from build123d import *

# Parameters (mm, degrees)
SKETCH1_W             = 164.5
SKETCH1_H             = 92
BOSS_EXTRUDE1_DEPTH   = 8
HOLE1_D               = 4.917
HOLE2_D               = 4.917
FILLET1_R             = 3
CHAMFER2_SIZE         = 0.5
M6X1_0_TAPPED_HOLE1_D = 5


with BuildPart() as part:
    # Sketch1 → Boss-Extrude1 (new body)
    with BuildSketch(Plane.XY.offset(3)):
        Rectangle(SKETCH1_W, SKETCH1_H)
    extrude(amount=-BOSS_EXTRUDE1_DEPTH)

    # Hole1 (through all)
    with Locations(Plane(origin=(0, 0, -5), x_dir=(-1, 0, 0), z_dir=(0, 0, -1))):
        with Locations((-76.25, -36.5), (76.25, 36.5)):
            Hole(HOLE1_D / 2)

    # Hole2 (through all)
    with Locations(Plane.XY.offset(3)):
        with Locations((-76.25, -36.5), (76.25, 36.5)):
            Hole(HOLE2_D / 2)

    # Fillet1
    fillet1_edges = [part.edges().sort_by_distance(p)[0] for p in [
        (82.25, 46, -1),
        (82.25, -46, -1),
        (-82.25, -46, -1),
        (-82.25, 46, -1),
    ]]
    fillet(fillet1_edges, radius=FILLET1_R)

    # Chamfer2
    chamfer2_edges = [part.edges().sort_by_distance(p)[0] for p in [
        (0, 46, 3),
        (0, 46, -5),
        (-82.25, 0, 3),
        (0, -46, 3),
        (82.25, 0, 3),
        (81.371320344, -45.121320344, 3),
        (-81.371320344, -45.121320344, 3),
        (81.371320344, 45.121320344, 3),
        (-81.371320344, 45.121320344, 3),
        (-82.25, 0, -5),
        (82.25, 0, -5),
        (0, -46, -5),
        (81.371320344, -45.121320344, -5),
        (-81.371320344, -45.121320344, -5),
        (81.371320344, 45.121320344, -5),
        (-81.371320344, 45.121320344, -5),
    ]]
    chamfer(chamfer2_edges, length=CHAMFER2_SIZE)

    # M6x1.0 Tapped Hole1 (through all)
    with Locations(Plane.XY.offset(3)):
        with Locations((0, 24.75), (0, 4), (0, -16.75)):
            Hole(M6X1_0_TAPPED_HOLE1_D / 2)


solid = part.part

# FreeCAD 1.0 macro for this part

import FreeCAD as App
import Part
import Sketcher


def edges_at(feature, points):
    """Names of the edges that pass closest to the given points."""
    edges = feature.Shape.Edges
    near = lambda p: min(range(len(edges)), key=lambda i: edges[i].distToShape(Part.Vertex(*p))[0])
    return sorted({f"Edge{near(p) + 1}" for p in points})


def add_polygon(sketch, points):
    """Adds a closed chain of lines whose ends are joined by coincident constraints."""
    first, n = sketch.GeometryCount, len(points)
    for a, b in zip(points, points[1:] + points[:1]):
        sketch.addGeometry(Part.LineSegment(App.Vector(*a, 0), App.Vector(*b, 0)), False)
    for i in range(n):
        sketch.addConstraint(Sketcher.Constraint("Coincident", first + i, 2, first + (i + 1) % n, 1))

doc = App.newDocument("Part")
params = doc.addObject("Spreadsheet::Sheet", "Params")
for row, (alias, value) in enumerate([
    ("sketch1_height", "92 mm"),
    ("sketch1_width", "164.5 mm"),
    ("pad1_length", "8 mm"),
    ("hole_diameter", "4.917 mm"),
    ("hole2_diameter", "4.917 mm"),
    ("fillet_radius", "3 mm"),
    ("chamfer_size", "0.5 mm"),
    ("sketch4_diameter", "5 mm"),
    ("hole3_diameter", "5 mm"),
], start=1):
    params.set(f"A{row}", alias)
    params.set(f"B{row}", "=" + value)
    params.setAlias(f"B{row}", alias)

body = doc.addObject("PartDesign::Body", "Body")

# Sketch on XY plane
sketch1 = body.newObject("Sketcher::SketchObject", "Sketch")
sketch1.AttachmentSupport = (doc.getObject("XY_Plane"), [""])
sketch1.MapMode = "FlatFace"
sketch1.AttachmentOffset = App.Placement(App.Vector(0, 0, 3), App.Rotation())
add_polygon(sketch1, [(-82, 46), (-82, -46), (82, -46), (82, 46)])  # lines 0-3
sketch1.addConstraint([
    Sketcher.Constraint("Vertical", 0),
    Sketcher.Constraint("Horizontal", 1),
    Sketcher.Constraint("Vertical", 2),
    Sketcher.Constraint("Horizontal", 3),
    Sketcher.Constraint("Symmetric", 0, 2, 2, 2, -1, 1),
    Sketcher.Constraint("DistanceY", 0, 2, 0, 1, 92.0),
    Sketcher.Constraint("DistanceX", 1, 1, 1, 2, 164.5),
])
sketch1.setExpression("Constraints[9]", "Params.sketch1_height")
sketch1.setExpression("Constraints[10]", "Params.sketch1_width")
pad1 = body.newObject("PartDesign::Pad", "Pad")
pad1.Profile = sketch1
pad1.setExpression("Length", "Params.pad1_length")
pad1.Reversed = True

# Sketch on XY plane
sketch2 = body.newObject("Sketcher::SketchObject", "Sketch001")
sketch2.AttachmentSupport = (doc.getObject("XY_Plane"), [""])
sketch2.MapMode = "FlatFace"
sketch2.AttachmentOffset = App.Placement(App.Vector(0, 0, -5), App.Rotation())
sketch2.addGeometry([
    Part.Circle(App.Vector(76.2, -36.5, 0), App.Vector(0, 0, 1), 2.5),
    Part.Circle(App.Vector(-76.2, 36.5, 0), App.Vector(0, 0, 1), 2.5),
], False)
sketch2.addConstraint([
    Sketcher.Constraint("Equal", 0, 1),
    Sketcher.Constraint("Symmetric", 0, 3, 1, 3, -1, 1),
    Sketcher.Constraint("Diameter", 0, 4.917),
    Sketcher.Constraint("DistanceY", 0, 3, 1, 3, 73.0),
    Sketcher.Constraint("DistanceX", 1, 3, 0, 3, 152.5),
])
doc.recompute()
hole = body.newObject("PartDesign::Hole", "Hole")
hole.Profile = sketch2
hole.ThreadType = "None"
hole.setExpression("Diameter", "Params.hole_diameter")
hole.DepthType = "ThroughAll"
hole.Reversed = True

# Sketch on XY plane
sketch3 = body.newObject("Sketcher::SketchObject", "Sketch002")
sketch3.AttachmentSupport = (doc.getObject("XY_Plane"), [""])
sketch3.MapMode = "FlatFace"
sketch3.AttachmentOffset = App.Placement(App.Vector(0, 0, 3), App.Rotation())
sketch3.addGeometry([
    Part.Circle(App.Vector(-76.2, -36.5, 0), App.Vector(0, 0, 1), 2.5),
    Part.Circle(App.Vector(76.2, 36.5, 0), App.Vector(0, 0, 1), 2.5),
], False)
sketch3.addConstraint([
    Sketcher.Constraint("Equal", 0, 1),
    Sketcher.Constraint("Symmetric", 0, 3, 1, 3, -1, 1),
    Sketcher.Constraint("Diameter", 0, 4.917),
    Sketcher.Constraint("DistanceY", 0, 3, 1, 3, 73.0),
    Sketcher.Constraint("DistanceX", 0, 3, 1, 3, 152.5),
])
doc.recompute()
hole2 = body.newObject("PartDesign::Hole", "Hole001")
hole2.Profile = sketch3
hole2.ThreadType = "None"
hole2.setExpression("Diameter", "Params.hole2_diameter")
hole2.DepthType = "ThroughAll"
doc.recompute()

fillet = body.newObject("PartDesign::Fillet", "Fillet")
fillet.Base = (hole2, edges_at(hole2, [
    (82.25, 46, -1),
    (82.25, -46, -1),
    (-82.25, -46, -1),
    (-82.25, 46, -1),
]))
fillet.setExpression("Radius", "Params.fillet_radius")
doc.recompute()

chamfer = body.newObject("PartDesign::Chamfer", "Chamfer")
chamfer.Base = (fillet, edges_at(fillet, [
    (0, 46, 3),
    (0, 46, -5),
    (-82.25, 0, 3),
    (0, -46, 3),
    (82.25, 0, 3),
    (81.371, -45.121, 3),
    (-81.371, -45.121, 3),
    (81.371, 45.121, 3),
    (-81.371, 45.121, 3),
    (-82.25, 0, -5),
    (82.25, 0, -5),
    (0, -46, -5),
    (81.371, -45.121, -5),
    (-81.371, -45.121, -5),
    (81.371, 45.121, -5),
    (-81.371, 45.121, -5),
]))
chamfer.setExpression("Size", "Params.chamfer_size")

# Sketch on XY plane
sketch4 = body.newObject("Sketcher::SketchObject", "Sketch003")
sketch4.AttachmentSupport = (doc.getObject("XY_Plane"), [""])
sketch4.MapMode = "FlatFace"
sketch4.AttachmentOffset = App.Placement(App.Vector(0, 0, 3), App.Rotation())
sketch4.addGeometry([
    Part.Circle(App.Vector(0, 24.8, 0), App.Vector(0, 0, 1), 2.5),
    Part.Circle(App.Vector(0, 4, 0), App.Vector(0, 0, 1), 2.5),
    Part.Circle(App.Vector(0, -16.8, 0), App.Vector(0, 0, 1), 2.5),
], False)
sketch4.addConstraint([
    Sketcher.Constraint("Equal", 0, 1),
    Sketcher.Constraint("Equal", 1, 2),
    Sketcher.Constraint("PointOnObject", 0, 3, -2),
    Sketcher.Constraint("PointOnObject", 1, 3, -2),
    Sketcher.Constraint("PointOnObject", 2, 3, -2),
    Sketcher.Constraint("Diameter", 0, 5.0),
    Sketcher.Constraint("DistanceY", -1, 1, 1, 3, 4.0),
    Sketcher.Constraint("DistanceY", 2, 3, 0, 3, 41.5),
    Sketcher.Constraint("DistanceY", -1, 1, 0, 3, 24.75),
])
sketch4.setExpression("Constraints[5]", "Params.sketch4_diameter")
doc.recompute()
hole3 = body.newObject("PartDesign::Hole", "Hole002")
hole3.Profile = sketch4
hole3.ThreadType = "None"
hole3.setExpression("Diameter", "Params.hole3_diameter")
hole3.DepthType = "ThroughAll"

doc.recompute()
